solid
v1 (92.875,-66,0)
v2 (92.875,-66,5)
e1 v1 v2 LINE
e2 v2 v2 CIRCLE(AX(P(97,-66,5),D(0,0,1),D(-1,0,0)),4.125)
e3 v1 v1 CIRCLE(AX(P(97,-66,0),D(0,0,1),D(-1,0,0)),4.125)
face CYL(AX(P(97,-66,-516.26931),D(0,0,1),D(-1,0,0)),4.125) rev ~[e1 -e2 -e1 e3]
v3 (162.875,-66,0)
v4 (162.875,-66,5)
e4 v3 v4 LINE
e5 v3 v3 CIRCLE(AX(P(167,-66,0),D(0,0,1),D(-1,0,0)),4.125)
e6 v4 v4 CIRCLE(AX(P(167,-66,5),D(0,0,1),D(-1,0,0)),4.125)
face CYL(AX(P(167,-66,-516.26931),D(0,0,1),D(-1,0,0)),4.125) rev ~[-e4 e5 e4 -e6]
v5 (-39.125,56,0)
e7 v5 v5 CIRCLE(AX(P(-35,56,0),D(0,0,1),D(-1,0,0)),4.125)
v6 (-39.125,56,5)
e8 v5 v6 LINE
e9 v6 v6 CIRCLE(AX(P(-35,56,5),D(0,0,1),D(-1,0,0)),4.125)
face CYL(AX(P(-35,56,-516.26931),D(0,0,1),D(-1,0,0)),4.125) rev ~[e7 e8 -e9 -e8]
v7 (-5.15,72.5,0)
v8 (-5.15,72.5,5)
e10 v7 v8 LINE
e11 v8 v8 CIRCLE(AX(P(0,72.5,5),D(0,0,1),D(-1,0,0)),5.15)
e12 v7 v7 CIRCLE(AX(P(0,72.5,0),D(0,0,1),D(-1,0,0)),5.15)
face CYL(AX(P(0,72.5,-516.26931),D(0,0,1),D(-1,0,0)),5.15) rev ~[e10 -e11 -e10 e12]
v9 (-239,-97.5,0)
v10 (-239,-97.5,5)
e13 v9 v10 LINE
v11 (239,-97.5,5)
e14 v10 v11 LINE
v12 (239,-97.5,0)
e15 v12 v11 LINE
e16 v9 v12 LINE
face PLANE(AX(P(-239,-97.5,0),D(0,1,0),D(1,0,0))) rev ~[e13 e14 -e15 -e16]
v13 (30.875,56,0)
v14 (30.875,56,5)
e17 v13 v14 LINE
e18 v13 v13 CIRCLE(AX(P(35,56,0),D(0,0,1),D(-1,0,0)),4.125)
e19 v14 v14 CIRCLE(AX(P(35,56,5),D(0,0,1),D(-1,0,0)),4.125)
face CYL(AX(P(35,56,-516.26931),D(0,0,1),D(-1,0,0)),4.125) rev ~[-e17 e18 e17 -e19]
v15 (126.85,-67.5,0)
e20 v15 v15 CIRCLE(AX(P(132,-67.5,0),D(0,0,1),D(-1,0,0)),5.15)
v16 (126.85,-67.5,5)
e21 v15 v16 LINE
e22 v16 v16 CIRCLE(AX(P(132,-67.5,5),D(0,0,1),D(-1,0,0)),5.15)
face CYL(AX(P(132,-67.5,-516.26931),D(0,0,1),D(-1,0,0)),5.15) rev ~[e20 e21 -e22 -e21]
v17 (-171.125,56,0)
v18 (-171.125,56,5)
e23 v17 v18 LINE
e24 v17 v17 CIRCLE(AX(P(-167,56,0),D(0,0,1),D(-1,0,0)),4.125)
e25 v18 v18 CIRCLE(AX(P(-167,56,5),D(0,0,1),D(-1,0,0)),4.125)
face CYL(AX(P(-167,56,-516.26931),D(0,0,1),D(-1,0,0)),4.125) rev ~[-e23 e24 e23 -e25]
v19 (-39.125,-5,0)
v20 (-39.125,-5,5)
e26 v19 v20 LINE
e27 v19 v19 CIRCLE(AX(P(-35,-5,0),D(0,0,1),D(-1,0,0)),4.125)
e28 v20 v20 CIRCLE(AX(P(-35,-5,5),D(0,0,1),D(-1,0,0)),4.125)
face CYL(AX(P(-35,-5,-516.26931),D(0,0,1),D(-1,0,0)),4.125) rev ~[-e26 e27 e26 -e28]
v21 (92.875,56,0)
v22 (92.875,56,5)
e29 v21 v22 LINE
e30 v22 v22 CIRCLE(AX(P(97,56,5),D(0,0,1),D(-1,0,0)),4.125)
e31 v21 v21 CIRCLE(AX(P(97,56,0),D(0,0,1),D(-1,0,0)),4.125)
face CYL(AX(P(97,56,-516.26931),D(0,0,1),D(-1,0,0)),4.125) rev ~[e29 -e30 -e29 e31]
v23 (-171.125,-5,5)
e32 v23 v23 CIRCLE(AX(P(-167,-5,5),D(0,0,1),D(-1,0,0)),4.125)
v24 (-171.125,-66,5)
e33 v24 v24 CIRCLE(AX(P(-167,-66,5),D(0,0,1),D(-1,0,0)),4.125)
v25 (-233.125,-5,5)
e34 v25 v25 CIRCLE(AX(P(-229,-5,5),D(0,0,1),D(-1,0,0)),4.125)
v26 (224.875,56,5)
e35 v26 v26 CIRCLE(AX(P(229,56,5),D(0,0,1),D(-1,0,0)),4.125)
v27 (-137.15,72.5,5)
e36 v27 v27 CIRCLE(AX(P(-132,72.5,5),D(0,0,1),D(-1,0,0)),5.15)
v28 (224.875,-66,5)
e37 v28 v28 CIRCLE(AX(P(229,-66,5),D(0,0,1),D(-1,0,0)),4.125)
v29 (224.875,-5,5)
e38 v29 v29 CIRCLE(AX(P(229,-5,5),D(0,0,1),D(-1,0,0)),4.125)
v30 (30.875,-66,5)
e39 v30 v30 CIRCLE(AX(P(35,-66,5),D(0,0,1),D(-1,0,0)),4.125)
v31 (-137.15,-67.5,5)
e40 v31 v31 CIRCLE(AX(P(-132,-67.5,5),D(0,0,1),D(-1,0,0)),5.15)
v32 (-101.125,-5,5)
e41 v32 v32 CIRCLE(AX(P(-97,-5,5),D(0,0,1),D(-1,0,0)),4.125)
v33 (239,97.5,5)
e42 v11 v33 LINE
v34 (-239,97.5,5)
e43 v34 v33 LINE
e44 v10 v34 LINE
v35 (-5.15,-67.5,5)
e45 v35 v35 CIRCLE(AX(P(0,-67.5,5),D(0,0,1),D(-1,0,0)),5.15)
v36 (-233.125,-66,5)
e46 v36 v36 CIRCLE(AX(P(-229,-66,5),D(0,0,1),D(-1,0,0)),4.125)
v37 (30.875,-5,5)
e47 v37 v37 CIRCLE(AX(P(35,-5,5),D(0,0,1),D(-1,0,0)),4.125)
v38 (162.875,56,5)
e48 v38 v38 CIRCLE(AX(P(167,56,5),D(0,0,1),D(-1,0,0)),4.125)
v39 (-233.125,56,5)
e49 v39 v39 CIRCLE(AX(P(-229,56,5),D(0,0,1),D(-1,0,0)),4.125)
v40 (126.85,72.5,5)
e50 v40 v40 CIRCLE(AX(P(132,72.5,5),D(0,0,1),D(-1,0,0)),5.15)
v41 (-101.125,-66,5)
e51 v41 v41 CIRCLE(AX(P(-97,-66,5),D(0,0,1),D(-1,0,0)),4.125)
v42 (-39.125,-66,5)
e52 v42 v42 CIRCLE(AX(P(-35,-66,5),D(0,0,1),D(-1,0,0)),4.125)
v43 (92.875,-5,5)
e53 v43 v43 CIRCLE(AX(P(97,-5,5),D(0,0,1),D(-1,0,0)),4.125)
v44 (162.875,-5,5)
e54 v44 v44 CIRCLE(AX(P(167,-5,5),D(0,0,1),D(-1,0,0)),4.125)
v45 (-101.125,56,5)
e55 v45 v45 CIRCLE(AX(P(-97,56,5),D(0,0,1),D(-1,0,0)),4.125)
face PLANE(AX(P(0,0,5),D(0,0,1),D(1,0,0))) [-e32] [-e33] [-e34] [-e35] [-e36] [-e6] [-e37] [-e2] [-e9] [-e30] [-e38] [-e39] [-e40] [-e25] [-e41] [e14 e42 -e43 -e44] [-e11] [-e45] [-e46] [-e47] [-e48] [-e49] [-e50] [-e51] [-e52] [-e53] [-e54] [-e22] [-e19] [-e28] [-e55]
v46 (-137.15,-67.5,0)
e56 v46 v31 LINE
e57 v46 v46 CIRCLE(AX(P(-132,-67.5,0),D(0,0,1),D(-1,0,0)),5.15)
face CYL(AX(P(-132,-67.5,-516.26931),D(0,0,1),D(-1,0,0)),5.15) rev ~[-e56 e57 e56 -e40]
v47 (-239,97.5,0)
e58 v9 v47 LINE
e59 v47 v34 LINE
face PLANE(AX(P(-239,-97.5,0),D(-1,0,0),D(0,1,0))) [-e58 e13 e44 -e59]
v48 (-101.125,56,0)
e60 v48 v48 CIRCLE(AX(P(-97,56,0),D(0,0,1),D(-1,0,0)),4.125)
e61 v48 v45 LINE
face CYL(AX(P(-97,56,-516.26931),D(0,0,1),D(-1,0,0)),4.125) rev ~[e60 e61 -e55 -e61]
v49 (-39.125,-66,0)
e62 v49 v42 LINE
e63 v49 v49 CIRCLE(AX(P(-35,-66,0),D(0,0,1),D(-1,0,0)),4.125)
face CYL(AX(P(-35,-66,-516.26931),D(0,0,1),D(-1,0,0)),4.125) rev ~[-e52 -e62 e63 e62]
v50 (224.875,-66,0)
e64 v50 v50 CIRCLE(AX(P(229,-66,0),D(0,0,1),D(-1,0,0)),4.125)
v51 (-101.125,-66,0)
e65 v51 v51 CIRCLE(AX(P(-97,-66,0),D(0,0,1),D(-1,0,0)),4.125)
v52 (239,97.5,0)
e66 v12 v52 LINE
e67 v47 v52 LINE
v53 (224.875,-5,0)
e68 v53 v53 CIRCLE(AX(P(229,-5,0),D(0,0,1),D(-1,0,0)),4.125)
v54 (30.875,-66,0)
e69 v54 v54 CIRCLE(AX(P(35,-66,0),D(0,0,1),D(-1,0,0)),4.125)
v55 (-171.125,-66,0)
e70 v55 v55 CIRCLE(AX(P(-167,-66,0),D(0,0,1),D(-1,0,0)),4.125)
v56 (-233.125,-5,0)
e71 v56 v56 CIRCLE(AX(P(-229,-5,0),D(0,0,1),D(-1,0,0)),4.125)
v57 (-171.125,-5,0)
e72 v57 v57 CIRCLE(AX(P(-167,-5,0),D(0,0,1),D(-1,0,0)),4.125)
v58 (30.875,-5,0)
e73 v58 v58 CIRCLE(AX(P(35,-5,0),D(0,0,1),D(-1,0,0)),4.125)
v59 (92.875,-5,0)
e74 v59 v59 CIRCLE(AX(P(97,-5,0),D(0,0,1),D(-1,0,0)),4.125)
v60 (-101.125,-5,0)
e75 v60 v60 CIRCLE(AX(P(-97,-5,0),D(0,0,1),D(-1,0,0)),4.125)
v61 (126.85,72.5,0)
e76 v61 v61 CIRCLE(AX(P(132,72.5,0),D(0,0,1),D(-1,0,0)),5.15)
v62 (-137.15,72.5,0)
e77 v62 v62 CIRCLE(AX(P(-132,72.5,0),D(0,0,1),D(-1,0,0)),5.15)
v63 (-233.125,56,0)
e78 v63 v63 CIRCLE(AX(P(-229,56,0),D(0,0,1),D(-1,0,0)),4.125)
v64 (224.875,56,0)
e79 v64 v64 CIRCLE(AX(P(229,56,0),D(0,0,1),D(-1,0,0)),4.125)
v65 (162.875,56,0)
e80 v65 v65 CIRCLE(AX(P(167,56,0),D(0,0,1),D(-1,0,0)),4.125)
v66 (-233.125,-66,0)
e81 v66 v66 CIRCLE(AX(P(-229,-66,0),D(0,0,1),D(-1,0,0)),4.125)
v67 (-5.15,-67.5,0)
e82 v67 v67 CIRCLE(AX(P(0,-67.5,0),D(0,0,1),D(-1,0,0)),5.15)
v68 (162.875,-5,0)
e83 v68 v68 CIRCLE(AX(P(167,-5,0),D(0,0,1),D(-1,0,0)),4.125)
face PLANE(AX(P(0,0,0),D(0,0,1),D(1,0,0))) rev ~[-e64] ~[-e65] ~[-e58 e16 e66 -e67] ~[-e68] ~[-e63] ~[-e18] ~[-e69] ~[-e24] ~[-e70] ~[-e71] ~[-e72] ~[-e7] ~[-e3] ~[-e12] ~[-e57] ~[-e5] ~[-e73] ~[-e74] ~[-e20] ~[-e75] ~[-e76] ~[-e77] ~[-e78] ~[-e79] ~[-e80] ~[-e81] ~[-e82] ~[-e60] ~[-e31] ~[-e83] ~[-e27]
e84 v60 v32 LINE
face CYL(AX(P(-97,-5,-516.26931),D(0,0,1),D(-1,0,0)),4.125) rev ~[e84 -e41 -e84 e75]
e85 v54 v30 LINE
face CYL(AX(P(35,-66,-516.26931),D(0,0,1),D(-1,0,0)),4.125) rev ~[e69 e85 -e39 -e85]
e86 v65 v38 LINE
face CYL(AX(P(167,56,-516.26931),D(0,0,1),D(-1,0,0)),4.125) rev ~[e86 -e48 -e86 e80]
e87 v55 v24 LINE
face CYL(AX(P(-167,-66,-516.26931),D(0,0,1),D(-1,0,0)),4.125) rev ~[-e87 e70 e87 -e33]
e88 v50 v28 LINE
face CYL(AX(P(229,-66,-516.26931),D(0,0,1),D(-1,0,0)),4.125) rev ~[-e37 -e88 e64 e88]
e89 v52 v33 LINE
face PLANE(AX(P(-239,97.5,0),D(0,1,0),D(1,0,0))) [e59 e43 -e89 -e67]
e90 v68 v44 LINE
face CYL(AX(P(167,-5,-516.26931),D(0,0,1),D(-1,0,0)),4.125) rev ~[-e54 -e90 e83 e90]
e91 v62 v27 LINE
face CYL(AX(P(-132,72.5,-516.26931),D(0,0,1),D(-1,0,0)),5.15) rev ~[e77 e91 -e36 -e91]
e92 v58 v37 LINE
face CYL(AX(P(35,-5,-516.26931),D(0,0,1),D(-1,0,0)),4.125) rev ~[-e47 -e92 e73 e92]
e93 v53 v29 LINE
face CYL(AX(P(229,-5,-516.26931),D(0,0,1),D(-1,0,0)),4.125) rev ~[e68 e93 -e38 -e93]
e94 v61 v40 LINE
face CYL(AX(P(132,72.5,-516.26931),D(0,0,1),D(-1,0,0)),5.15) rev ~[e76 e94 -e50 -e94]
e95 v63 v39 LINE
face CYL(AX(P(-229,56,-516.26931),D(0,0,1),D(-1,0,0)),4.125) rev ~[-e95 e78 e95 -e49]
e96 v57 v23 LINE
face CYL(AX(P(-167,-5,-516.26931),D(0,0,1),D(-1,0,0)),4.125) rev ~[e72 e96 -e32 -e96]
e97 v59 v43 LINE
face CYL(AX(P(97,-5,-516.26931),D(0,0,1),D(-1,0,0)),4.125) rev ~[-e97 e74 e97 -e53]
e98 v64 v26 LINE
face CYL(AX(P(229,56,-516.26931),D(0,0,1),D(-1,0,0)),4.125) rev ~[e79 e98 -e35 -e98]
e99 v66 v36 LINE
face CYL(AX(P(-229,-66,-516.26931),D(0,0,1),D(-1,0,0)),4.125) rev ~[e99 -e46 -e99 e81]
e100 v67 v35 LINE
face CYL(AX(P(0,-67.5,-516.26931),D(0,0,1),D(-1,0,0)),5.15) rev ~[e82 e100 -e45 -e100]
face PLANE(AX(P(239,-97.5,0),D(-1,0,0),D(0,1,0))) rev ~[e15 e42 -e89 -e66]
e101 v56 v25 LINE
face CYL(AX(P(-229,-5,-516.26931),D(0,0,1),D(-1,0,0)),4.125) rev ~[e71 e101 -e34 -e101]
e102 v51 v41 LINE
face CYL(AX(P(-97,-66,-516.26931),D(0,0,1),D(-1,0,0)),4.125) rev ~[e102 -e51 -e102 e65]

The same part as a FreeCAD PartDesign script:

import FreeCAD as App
import Part
import Sketcher

V = App.Vector

doc = App.newDocument("Part")
body = doc.addObject("PartDesign::Body", "Body")

# Sketch on XY plane
sketch1 = body.newObject("Sketcher::SketchObject", "Sketch")
sketch1.AttachmentSupport = (doc.getObject("XY_Plane"), [""])
sketch1.MapMode = "FlatFace"
sketch1.addGeometry(Part.LineSegment(V(-239, 97.5, 0), V(-239, -97.5, 0)), False)
sketch1.addGeometry(Part.LineSegment(V(-239, -97.5, 0), V(239, -97.5, 0)), False)
sketch1.addGeometry(Part.LineSegment(V(239, -97.5, 0), V(239, 97.5, 0)), False)
sketch1.addGeometry(Part.LineSegment(V(239, 97.5, 0), V(-239, 97.5, 0)), False)
sketch1.addConstraint(Sketcher.Constraint("Coincident", 0, 2, 1, 1))
sketch1.addConstraint(Sketcher.Constraint("Coincident", 1, 2, 2, 1))
sketch1.addConstraint(Sketcher.Constraint("Coincident", 2, 2, 3, 1))
sketch1.addConstraint(Sketcher.Constraint("Coincident", 3, 2, 0, 1))
sketch1.addConstraint(Sketcher.Constraint("Vertical", 0))
sketch1.addConstraint(Sketcher.Constraint("Horizontal", 1))
sketch1.addConstraint(Sketcher.Constraint("Vertical", 2))
sketch1.addConstraint(Sketcher.Constraint("Horizontal", 3))
sketch1.addConstraint(Sketcher.Constraint("Symmetric", 0, 2, 2, 2, -1, 1))
sketch1.addConstraint(Sketcher.Constraint("DistanceX", 1, 1, 1, 2, 478.0))
sketch1.addConstraint(Sketcher.Constraint("DistanceY", 0, 2, 0, 1, 195.0))
pad1 = body.newObject("PartDesign::Pad", "Pad")
pad1.Profile = sketch1
pad1.Length = 5

# Sketch on XY plane
sketch2 = body.newObject("Sketcher::SketchObject", "Sketch001")
sketch2.AttachmentSupport = (doc.getObject("XY_Plane"), [""])
sketch2.MapMode = "FlatFace"
sketch2.addGeometry(Part.Circle(V(-229, 56, 0), V(0, 0, 1), 4.125), False)
sketch2.addGeometry(Part.Circle(V(-229, -5, 0), V(0, 0, 1), 4.125), False)
sketch2.addGeometry(Part.Circle(V(-229, -66, 0), V(0, 0, 1), 4.125), False)
sketch2.addGeometry(Part.Circle(V(-167, 56, 0), V(0, 0, 1), 4.125), False)
sketch2.addGeometry(Part.Circle(V(-167, -5, 0), V(0, 0, 1), 4.125), False)
sketch2.addGeometry(Part.Circle(V(-167, -66, 0), V(0, 0, 1), 4.125), False)
sketch2.addGeometry(Part.Circle(V(-97, -66, 0), V(0, 0, 1), 4.125), False)
sketch2.addGeometry(Part.Circle(V(-97, -5, 0), V(0, 0, 1), 4.125), False)
sketch2.addGeometry(Part.Circle(V(-97, 56, 0), V(0, 0, 1), 4.125), False)
sketch2.addGeometry(Part.Circle(V(-35, 56, 0), V(0, 0, 1), 4.125), False)
sketch2.addGeometry(Part.Circle(V(-35, -5, 0), V(0, 0, 1), 4.125), False)
sketch2.addGeometry(Part.Circle(V(-35, -66, 0), V(0, 0, 1), 4.125), False)
sketch2.addGeometry(Part.Circle(V(35, -66, 0), V(0, 0, 1), 4.125), False)
sketch2.addGeometry(Part.Circle(V(35, -5, 0), V(0, 0, 1), 4.125), False)
sketch2.addGeometry(Part.Circle(V(35, 56, 0), V(0, 0, 1), 4.125), False)
sketch2.addGeometry(Part.Circle(V(97, 56, 0), V(0, 0, 1), 4.125), False)
sketch2.addGeometry(Part.Circle(V(97, -5, 0), V(0, 0, 1), 4.125), False)
sketch2.addGeometry(Part.Circle(V(97, -66, 0), V(0, 0, 1), 4.125), False)
sketch2.addGeometry(Part.Circle(V(167, -66, 0), V(0, 0, 1), 4.125), False)
sketch2.addGeometry(Part.Circle(V(167, -5, 0), V(0, 0, 1), 4.125), False)
sketch2.addGeometry(Part.Circle(V(167, 56, 0), V(0, 0, 1), 4.125), False)
sketch2.addGeometry(Part.Circle(V(229, 56, 0), V(0, 0, 1), 4.125), False)
sketch2.addGeometry(Part.Circle(V(229, -5, 0), V(0, 0, 1), 4.125), False)
sketch2.addGeometry(Part.Circle(V(229, -66, 0), V(0, 0, 1), 4.125), False)
sketch2.addConstraint(Sketcher.Constraint("Equal", 0, 1))
sketch2.addConstraint(Sketcher.Constraint("Equal", 1, 2))
sketch2.addConstraint(Sketcher.Constraint("Equal", 2, 3))
sketch2.addConstraint(Sketcher.Constraint("Equal", 3, 4))
sketch2.addConstraint(Sketcher.Constraint("Equal", 4, 5))
sketch2.addConstraint(Sketcher.Constraint("Equal", 5, 6))
sketch2.addConstraint(Sketcher.Constraint("Equal", 6, 7))
sketch2.addConstraint(Sketcher.Constraint("Equal", 7, 8))
sketch2.addConstraint(Sketcher.Constraint("Equal", 8, 9))
sketch2.addConstraint(Sketcher.Constraint("Equal", 9, 10))
sketch2.addConstraint(Sketcher.Constraint("Equal", 10, 11))
sketch2.addConstraint(Sketcher.Constraint("Equal", 11, 12))
sketch2.addConstraint(Sketcher.Constraint("Equal", 12, 13))
sketch2.addConstraint(Sketcher.Constraint("Equal", 13, 14))
sketch2.addConstraint(Sketcher.Constraint("Equal", 14, 15))
sketch2.addConstraint(Sketcher.Constraint("Equal", 15, 16))
sketch2.addConstraint(Sketcher.Constraint("Equal", 16, 17))
sketch2.addConstraint(Sketcher.Constraint("Equal", 17, 18))
sketch2.addConstraint(Sketcher.Constraint("Equal", 18, 19))
sketch2.addConstraint(Sketcher.Constraint("Equal", 19, 20))
sketch2.addConstraint(Sketcher.Constraint("Equal", 20, 21))
sketch2.addConstraint(Sketcher.Constraint("Equal", 21, 22))
sketch2.addConstraint(Sketcher.Constraint("Equal", 22, 23))
sketch2.addConstraint(Sketcher.Constraint("Symmetric", 11, 3, 12, 3, -2))
sketch2.addConstraint(Sketcher.Constraint("Symmetric", 10, 3, 13, 3, -2))
sketch2.addConstraint(Sketcher.Constraint("Symmetric", 9, 3, 14, 3, -2))
sketch2.addConstraint(Sketcher.Constraint("Symmetric", 8, 3, 15, 3, -2))
sketch2.addConstraint(Sketcher.Constraint("Symmetric", 7, 3, 16, 3, -2))
sketch2.addConstraint(Sketcher.Constraint("Symmetric", 6, 3, 17, 3, -2))
sketch2.addConstraint(Sketcher.Constraint("Symmetric", 5, 3, 18, 3, -2))
sketch2.addConstraint(Sketcher.Constraint("Symmetric", 4, 3, 19, 3, -2))
sketch2.addConstraint(Sketcher.Constraint("Symmetric", 3, 3, 20, 3, -2))
sketch2.addConstraint(Sketcher.Constraint("Symmetric", 0, 3, 21, 3, -2))
sketch2.addConstraint(Sketcher.Constraint("Symmetric", 1, 3, 22, 3, -2))
sketch2.addConstraint(Sketcher.Constraint("Symmetric", 2, 3, 23, 3, -2))
sketch2.addConstraint(Sketcher.Constraint("Horizontal", 0, 3, 3, 3))
sketch2.addConstraint(Sketcher.Constraint("Horizontal", 1, 3, 4, 3))
sketch2.addConstraint(Sketcher.Constraint("Horizontal", 2, 3, 5, 3))
sketch2.addConstraint(Sketcher.Constraint("Horizontal", 5, 3, 6, 3))
sketch2.addConstraint(Sketcher.Constraint("Horizontal", 4, 3, 7, 3))
sketch2.addConstraint(Sketcher.Constraint("Horizontal", 3, 3, 8, 3))
sketch2.addConstraint(Sketcher.Constraint("Horizontal", 8, 3, 9, 3))
sketch2.addConstraint(Sketcher.Constraint("Horizontal", 7, 3, 10, 3))
sketch2.addConstraint(Sketcher.Constraint("Horizontal", 6, 3, 11, 3))
sketch2.addConstraint(Sketcher.Constraint("Vertical", 0, 3, 1, 3))
sketch2.addConstraint(Sketcher.Constraint("Vertical", 1, 3, 2, 3))
sketch2.addConstraint(Sketcher.Constraint("Vertical", 3, 3, 4, 3))
sketch2.addConstraint(Sketcher.Constraint("Vertical", 4, 3, 5, 3))
sketch2.addConstraint(Sketcher.Constraint("Vertical", 6, 3, 7, 3))
sketch2.addConstraint(Sketcher.Constraint("Vertical", 7, 3, 8, 3))
sketch2.addConstraint(Sketcher.Constraint("Vertical", 9, 3, 10, 3))
sketch2.addConstraint(Sketcher.Constraint("Vertical", 10, 3, 11, 3))
sketch2.addConstraint(Sketcher.Constraint("Diameter", 0, 8.25))
sketch2.addConstraint(Sketcher.Constraint("DistanceX", 0, 3, -1, 1, 229.0))
sketch2.addConstraint(Sketcher.Constraint("DistanceY", -1, 1, 0, 3, 56.0))
sketch2.addConstraint(Sketcher.Constraint("DistanceY", 1, 3, -1, 1, 5.0))
sketch2.addConstraint(Sketcher.Constraint("DistanceY", 2, 3, -1, 1, 66.0))
sketch2.addConstraint(Sketcher.Constraint("DistanceX", 3, 3, -1, 1, 167.0))
sketch2.addConstraint(Sketcher.Constraint("DistanceX", 6, 3, -1, 1, 97.0))
sketch2.addConstraint(Sketcher.Constraint("DistanceX", 9, 3, -1, 1, 35.0))
doc.recompute()
hole = body.newObject("PartDesign::Hole", "Hole")
hole.Profile = sketch2
hole.ThreadType = "None"
hole.Diameter = 8.25
hole.DepthType = "ThroughAll"
hole.Reversed = True

# Sketch on XY plane
sketch3 = body.newObject("Sketcher::SketchObject", "Sketch002")
sketch3.AttachmentSupport = (doc.getObject("XY_Plane"), [""])
sketch3.MapMode = "FlatFace"
sketch3.addGeometry(Part.Circle(V(-132, 72.5, 0), V(0, 0, 1), 5.15), False)
sketch3.addGeometry(Part.Circle(V(-132, -67.5, 0), V(0, 0, 1), 5.15), False)
sketch3.addGeometry(Part.Circle(V(0, 72.5, 0), V(0, 0, 1), 5.15), False)
sketch3.addGeometry(Part.Circle(V(0, -67.5, 0), V(0, 0, 1), 5.15), False)
sketch3.addGeometry(Part.Circle(V(132, 72.5, 0), V(0, 0, 1), 5.15), False)
sketch3.addGeometry(Part.Circle(V(132, -67.5, 0), V(0, 0, 1), 5.15), False)
sketch3.addConstraint(Sketcher.Constraint("Equal", 0, 1))
sketch3.addConstraint(Sketcher.Constraint("Equal", 1, 2))
sketch3.addConstraint(Sketcher.Constraint("Equal", 2, 3))
sketch3.addConstraint(Sketcher.Constraint("Equal", 3, 4))
sketch3.addConstraint(Sketcher.Constraint("Equal", 4, 5))
sketch3.addConstraint(Sketcher.Constraint("Symmetric", 0, 3, 4, 3, -2))
sketch3.addConstraint(Sketcher.Constraint("Symmetric", 1, 3, 5, 3, -2))
sketch3.addConstraint(Sketcher.Constraint("PointOnObject", 2, 3, -2))
sketch3.addConstraint(Sketcher.Constraint("PointOnObject", 3, 3, -2))
sketch3.addConstraint(Sketcher.Constraint("Horizontal", 0, 3, 2, 3))
sketch3.addConstraint(Sketcher.Constraint("Horizontal", 1, 3, 3, 3))
sketch3.addConstraint(Sketcher.Constraint("Vertical", 0, 3, 1, 3))
sketch3.addConstraint(Sketcher.Constraint("Diameter", 0, 10.3))
sketch3.addConstraint(Sketcher.Constraint("DistanceX", 0, 3, -1, 1, 132.0))
sketch3.addConstraint(Sketcher.Constraint("DistanceY", 1, 3, 0, 3, 140.0))
sketch3.addConstraint(Sketcher.Constraint("DistanceY", -1, 1, 0, 3, 72.5))
doc.recompute()
hole2 = body.newObject("PartDesign::Hole", "Hole001")
hole2.Profile = sketch3
hole2.ThreadType = "None"
hole2.Diameter = 10.3
hole2.DepthType = "ThroughAll"
hole2.Reversed = True

doc.recompute()
